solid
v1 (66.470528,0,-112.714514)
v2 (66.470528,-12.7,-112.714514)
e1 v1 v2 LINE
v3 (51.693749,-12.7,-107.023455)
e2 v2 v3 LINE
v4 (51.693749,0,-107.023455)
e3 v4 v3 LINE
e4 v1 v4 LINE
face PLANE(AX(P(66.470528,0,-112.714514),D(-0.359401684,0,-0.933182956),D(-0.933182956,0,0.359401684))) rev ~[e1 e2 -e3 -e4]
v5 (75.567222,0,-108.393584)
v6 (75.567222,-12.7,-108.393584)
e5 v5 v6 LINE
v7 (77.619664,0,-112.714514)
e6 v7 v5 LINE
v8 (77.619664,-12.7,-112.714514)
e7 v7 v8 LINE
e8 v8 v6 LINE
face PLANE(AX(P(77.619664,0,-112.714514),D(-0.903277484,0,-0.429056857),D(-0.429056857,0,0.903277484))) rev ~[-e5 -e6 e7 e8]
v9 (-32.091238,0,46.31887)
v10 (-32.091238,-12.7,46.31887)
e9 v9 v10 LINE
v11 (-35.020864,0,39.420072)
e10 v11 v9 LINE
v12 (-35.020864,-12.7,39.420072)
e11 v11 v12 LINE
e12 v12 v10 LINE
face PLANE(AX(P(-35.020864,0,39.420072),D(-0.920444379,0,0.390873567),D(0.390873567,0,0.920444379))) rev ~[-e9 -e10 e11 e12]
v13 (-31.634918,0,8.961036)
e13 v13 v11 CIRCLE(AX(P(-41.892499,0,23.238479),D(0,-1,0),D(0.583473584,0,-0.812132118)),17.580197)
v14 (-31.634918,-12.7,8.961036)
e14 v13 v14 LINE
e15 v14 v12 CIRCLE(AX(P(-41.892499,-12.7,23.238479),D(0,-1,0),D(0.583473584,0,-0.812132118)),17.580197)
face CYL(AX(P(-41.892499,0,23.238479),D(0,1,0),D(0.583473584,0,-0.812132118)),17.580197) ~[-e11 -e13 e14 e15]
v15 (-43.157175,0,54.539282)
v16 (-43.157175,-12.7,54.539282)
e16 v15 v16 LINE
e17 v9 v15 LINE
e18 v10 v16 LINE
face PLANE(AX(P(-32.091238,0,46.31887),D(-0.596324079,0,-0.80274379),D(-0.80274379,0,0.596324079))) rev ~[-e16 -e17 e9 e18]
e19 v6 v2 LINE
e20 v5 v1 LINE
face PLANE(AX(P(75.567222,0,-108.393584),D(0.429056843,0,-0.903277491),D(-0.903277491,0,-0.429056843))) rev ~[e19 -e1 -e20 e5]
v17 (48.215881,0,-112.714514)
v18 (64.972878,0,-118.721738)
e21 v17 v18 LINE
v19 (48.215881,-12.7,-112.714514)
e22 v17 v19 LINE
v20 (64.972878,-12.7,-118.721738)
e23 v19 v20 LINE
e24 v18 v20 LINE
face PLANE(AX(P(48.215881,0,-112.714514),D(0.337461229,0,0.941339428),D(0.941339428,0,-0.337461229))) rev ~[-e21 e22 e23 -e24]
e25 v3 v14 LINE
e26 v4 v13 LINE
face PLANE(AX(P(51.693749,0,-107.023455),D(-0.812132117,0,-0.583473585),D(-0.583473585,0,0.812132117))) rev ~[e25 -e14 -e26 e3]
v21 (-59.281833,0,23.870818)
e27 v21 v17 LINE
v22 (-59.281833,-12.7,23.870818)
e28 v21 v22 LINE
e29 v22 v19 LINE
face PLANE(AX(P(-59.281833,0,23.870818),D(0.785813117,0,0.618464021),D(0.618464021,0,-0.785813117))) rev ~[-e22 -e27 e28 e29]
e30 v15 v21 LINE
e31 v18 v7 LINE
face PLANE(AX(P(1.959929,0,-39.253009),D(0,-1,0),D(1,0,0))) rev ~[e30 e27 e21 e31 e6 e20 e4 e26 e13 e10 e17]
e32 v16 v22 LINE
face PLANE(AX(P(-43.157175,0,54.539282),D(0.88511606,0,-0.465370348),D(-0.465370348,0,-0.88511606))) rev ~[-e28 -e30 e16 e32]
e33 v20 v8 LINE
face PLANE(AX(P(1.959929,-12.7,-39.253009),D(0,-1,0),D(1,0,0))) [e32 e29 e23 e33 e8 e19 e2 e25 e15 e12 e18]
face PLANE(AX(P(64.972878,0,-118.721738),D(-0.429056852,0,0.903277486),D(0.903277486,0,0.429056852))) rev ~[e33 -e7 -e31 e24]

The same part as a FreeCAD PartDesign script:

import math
import FreeCAD as App
import Part
import Sketcher
Q = App.Units.Quantity

doc = App.newDocument("Part")
body = doc.addObject("PartDesign::Body", "Body")

# Sketch on XZ plane
sketch1 = body.newObject("Sketcher::SketchObject", "Sketch")
sketch1.AttachmentSupport = (doc.getObject("XZ_Plane"), [""])
sketch1.MapMode = "FlatFace"
sketch1.addGeometry([
    Part.LineSegment(App.Vector(-32.1, 46.3, 0), App.Vector(-43.2, 54.5, 0)),  # 0
    Part.LineSegment(App.Vector(-43.2, 54.5, 0), App.Vector(-59.3, 23.9, 0)),  # 1
    Part.LineSegment(App.Vector(-59.3, 23.9, 0), App.Vector(48.2, -112.7, 0)),  # 2
    Part.LineSegment(App.Vector(48.2, -112.7, 0), App.Vector(65, -118.7, 0)),  # 3
    Part.LineSegment(App.Vector(65, -118.7, 0), App.Vector(77.6, -112.7, 0)),  # 4
    Part.LineSegment(App.Vector(77.6, -112.7, 0), App.Vector(75.6, -108.4, 0)),  # 5
    Part.LineSegment(App.Vector(75.6, -108.4, 0), App.Vector(66.5, -112.7, 0)),  # 6
    Part.LineSegment(App.Vector(66.5, -112.7, 0), App.Vector(51.7, -107, 0)),  # 7
    Part.LineSegment(App.Vector(51.7, -107, 0), App.Vector(-31.6, 9, 0)),  # 8
    Part.ArcOfCircle(Part.Circle(App.Vector(-41.9, 23.2, 0), App.Vector(0, 0, 1), 17.6), math.radians(-54), math.radians(67)),  # 9
    Part.LineSegment(App.Vector(-35, 39.4, 0), App.Vector(-32.1, 46.3, 0)),  # 10
], False)
sketch1.addConstraint([
    Sketcher.Constraint("Coincident", 0, 2, 1, 1),
    Sketcher.Constraint("Coincident", 1, 2, 2, 1),
    Sketcher.Constraint("Coincident", 2, 2, 3, 1),
    Sketcher.Constraint("Coincident", 3, 2, 4, 1),
    Sketcher.Constraint("Coincident", 4, 2, 5, 1),
    Sketcher.Constraint("Coincident", 5, 2, 6, 1),
    Sketcher.Constraint("Coincident", 6, 2, 7, 1),
    Sketcher.Constraint("Coincident", 7, 2, 8, 1),
    Sketcher.Constraint("Coincident", 8, 2, 9, 1),
    Sketcher.Constraint("Coincident", 9, 2, 10, 1),
    Sketcher.Constraint("Coincident", 10, 2, 0, 1),
    Sketcher.Constraint("Perpendicular", 4, 5),
    Sketcher.Constraint("Perpendicular", 5, 6),
    Sketcher.Constraint("Horizontal", 2, 2, 4, 2),
    Sketcher.Constraint("Horizontal", 4, 2, 6, 2),
    Sketcher.Constraint("Radius", 9, Q("17.580197 mm")),
    Sketcher.Constraint("DistanceY", 3, 2, 0, 2, Q("6.8213 in")),
    Sketcher.Constraint("DistanceX", 3, 2, 5, 2, Q("0.4171002 in")),
    Sketcher.Constraint("DistanceX", 9, 3, -1, 1, Q("41.892499 mm")),
    Sketcher.Constraint("DistanceX", 8, 2, 2, 2, Q("79.850799 mm")),
    Sketcher.Constraint("Distance", 0, Q("13.785142 mm")),
    Sketcher.Constraint("DistanceY", -1, 1, 9, 3, Q("23.238479 mm")),
    Sketcher.Constraint("DistanceY", -1, 1, 1, 2, Q("23.870818 mm")),
    Sketcher.Constraint("DistanceX", -1, 1, 2, 2, Q("48.215881 mm")),
    Sketcher.Constraint("DistanceY", 3, 2, -1, 1, Q("118.721738 mm")),
    Sketcher.Constraint("DistanceX", -1, 1, 5, 2, Q("75.567222 mm")),
    Sketcher.Constraint("DistanceX", -1, 1, 6, 2, Q("66.470528 mm")),
    Sketcher.Constraint("DistanceX", -1, 1, 7, 2, Q("51.693749 mm")),
    Sketcher.Constraint("DistanceY", -1, 1, 10, 2, Q("46.31887 mm")),
    Sketcher.Constraint("DistanceY", 2, 2, 1, 2, Q("136.585332 mm")),
    Sketcher.Constraint("DistanceX", 1, 2, 3, 2, Q("124.254711 mm")),
    Sketcher.Constraint("DistanceX", 0, 2, 4, 2, Q("120.776839 mm")),
    Sketcher.Constraint("DistanceY", 2, 2, 7, 2, Q("5.691059 mm")),
    Sketcher.Constraint("DistanceX", 0, 2, 9, 2, Q("8.136311 mm")),
])
pad1 = body.newObject("PartDesign::Pad", "Pad")
pad1.Profile = sketch1
pad1.Length = Q("0.5 in")

doc.recompute()
